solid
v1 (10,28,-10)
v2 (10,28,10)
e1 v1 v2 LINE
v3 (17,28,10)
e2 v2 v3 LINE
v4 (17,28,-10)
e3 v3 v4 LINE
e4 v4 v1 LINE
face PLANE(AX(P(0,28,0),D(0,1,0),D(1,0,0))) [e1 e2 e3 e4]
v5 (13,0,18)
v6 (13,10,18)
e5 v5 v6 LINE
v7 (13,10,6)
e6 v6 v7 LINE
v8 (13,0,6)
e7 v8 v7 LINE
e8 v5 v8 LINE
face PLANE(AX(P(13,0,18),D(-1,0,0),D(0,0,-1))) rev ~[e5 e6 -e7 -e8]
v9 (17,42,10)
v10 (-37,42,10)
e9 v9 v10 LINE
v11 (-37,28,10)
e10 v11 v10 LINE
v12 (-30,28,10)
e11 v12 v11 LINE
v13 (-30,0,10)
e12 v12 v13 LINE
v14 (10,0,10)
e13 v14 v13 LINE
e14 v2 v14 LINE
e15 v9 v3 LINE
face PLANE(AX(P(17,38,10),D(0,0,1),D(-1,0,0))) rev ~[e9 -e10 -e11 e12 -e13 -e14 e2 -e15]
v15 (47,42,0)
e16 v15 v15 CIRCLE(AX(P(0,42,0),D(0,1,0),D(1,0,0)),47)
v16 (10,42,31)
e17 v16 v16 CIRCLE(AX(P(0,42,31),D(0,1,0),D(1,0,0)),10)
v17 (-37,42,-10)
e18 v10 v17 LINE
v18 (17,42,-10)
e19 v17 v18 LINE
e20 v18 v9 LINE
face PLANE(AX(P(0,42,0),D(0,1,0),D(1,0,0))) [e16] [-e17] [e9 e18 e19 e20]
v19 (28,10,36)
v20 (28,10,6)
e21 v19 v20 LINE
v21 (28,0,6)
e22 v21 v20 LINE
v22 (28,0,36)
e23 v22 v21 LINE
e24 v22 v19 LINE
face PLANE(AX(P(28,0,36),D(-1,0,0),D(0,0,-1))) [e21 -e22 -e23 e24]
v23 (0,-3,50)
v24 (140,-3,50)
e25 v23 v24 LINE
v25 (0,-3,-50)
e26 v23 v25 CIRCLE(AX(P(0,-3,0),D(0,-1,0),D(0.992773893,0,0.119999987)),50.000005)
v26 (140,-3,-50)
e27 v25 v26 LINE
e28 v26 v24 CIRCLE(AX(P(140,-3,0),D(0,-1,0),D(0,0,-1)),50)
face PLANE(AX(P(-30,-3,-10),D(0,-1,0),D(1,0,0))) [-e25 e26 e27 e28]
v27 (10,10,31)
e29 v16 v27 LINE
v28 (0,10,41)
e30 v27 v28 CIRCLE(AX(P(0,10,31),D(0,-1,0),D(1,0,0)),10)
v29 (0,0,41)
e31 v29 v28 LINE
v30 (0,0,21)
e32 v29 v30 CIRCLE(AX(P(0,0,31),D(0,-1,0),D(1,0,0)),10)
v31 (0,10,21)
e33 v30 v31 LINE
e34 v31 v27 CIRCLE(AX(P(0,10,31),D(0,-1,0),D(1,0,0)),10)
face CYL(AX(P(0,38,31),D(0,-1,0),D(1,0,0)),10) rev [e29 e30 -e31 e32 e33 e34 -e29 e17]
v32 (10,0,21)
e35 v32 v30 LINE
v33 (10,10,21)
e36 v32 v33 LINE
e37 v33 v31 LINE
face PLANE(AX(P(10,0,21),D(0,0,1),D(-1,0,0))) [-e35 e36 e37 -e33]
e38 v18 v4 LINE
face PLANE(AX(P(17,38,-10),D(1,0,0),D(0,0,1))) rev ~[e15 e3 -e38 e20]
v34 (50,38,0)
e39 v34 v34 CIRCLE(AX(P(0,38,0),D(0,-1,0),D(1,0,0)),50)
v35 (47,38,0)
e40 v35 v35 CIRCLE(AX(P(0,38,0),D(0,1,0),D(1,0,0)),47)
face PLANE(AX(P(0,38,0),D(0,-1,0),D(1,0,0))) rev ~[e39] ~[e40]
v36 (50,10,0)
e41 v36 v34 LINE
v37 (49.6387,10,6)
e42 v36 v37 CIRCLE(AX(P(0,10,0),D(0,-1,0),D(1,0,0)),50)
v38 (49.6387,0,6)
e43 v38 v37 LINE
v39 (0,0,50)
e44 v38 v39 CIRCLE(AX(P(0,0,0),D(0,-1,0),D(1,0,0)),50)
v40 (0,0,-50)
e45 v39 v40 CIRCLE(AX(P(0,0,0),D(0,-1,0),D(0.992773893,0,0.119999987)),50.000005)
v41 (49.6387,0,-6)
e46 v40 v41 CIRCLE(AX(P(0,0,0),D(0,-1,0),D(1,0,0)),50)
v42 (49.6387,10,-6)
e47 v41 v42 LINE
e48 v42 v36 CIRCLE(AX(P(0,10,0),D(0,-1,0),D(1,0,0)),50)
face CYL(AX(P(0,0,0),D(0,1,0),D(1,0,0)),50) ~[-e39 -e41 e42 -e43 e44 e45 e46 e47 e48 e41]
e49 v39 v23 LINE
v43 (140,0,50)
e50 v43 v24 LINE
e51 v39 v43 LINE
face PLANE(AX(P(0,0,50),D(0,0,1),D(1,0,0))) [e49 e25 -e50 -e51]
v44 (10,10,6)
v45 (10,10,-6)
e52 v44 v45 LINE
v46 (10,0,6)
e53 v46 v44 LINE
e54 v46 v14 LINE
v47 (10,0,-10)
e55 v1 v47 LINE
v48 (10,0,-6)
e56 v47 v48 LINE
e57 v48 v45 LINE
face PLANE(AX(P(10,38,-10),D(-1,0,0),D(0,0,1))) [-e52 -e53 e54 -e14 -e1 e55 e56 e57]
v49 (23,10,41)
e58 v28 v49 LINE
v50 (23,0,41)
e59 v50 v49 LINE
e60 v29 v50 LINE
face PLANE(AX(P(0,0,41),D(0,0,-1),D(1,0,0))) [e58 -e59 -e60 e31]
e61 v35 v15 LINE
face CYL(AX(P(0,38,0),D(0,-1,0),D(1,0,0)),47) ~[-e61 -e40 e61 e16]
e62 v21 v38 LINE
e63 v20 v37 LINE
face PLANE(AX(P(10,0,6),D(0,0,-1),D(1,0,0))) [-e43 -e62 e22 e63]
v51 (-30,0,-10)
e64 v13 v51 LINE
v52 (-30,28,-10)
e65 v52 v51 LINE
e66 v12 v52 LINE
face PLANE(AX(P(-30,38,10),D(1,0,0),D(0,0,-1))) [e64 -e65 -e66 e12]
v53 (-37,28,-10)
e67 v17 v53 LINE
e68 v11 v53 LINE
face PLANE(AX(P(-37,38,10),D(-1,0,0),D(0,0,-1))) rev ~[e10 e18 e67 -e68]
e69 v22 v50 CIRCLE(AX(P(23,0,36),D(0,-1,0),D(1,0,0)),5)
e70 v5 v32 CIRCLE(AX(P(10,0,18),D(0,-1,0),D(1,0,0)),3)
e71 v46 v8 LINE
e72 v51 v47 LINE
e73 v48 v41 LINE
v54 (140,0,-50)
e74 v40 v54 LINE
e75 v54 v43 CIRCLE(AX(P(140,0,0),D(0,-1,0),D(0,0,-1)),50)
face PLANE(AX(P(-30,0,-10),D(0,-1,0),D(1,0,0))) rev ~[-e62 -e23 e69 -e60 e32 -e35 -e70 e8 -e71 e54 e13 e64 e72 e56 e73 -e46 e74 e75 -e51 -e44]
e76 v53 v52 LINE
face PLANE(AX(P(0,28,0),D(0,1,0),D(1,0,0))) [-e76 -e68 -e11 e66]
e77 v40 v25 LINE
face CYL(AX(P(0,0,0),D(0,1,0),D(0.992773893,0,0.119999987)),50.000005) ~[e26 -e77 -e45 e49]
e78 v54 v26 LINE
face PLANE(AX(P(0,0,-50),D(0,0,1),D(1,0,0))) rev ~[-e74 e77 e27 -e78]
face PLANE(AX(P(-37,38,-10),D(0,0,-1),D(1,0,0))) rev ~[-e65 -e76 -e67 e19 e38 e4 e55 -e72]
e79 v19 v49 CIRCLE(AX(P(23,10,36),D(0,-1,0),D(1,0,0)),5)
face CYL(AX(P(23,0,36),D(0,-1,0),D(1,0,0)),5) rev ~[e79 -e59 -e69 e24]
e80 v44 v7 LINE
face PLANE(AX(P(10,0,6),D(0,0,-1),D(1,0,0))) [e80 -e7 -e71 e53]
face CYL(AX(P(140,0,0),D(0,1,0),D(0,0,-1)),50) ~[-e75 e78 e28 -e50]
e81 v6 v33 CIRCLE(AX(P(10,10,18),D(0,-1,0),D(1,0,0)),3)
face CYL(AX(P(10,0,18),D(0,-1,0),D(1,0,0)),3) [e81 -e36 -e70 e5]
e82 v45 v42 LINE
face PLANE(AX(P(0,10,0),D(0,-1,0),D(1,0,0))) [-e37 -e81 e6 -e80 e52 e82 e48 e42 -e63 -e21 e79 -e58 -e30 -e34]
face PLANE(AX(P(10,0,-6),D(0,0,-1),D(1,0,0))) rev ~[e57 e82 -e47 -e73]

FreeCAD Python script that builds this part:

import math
import FreeCAD as App
import Part
import Sketcher
Q = App.Units.Quantity


def add_polygon(sketch, points):
    """Adds a closed chain of lines whose ends are joined by coincident constraints."""
    first, n = sketch.GeometryCount, len(points)
    for a, b in zip(points, points[1:] + points[:1]):
        sketch.addGeometry(Part.LineSegment(App.Vector(*a, 0), App.Vector(*b, 0)), False)
    for i in range(n):
        sketch.addConstraint(Sketcher.Constraint("Coincident", first + i, 2, first + (i + 1) % n, 1))

doc = App.newDocument("Part")
body = doc.addObject("PartDesign::Body", "Body")

sketch1 = body.newObject("Sketcher::SketchObject", "Sketch")
sketch1.AttachmentSupport = (doc.getObject("XY_Plane"), [""])
sketch1.MapMode = "FlatFace"
add_polygon(sketch1, [(0, 38), (0, 0), (50, 0), (50, 38)])
sketch1.addConstraint([
    Sketcher.Constraint("Vertical", 0),
    Sketcher.Constraint("Horizontal", 1),
    Sketcher.Constraint("Vertical", 2),
    Sketcher.Constraint("Horizontal", 3),
    Sketcher.Constraint("Coincident", 0, 2, -1, 1),
    Sketcher.Constraint("DistanceY", 0, 2, 0, 1, Q("38 mm")),
    Sketcher.Constraint("DistanceX", 1, 1, 1, 2, Q("50 mm")),
])
revolution = body.newObject("PartDesign::Revolution", "Revolution")
revolution.Profile = sketch1
revolution.ReferenceAxis = (sketch1, ["V_Axis"])
revolution.Angle = 360

sketch2 = body.newObject("Sketcher::SketchObject", "Sketch001")
sketch2.AttachmentSupport = (doc.getObject("XZ_Plane"), [""])
sketch2.MapMode = "FlatFace"
sketch2.AttachmentOffset = App.Placement(App.Vector(0, 0, -38), App.Rotation())
add_polygon(sketch2, [(10, -10), (-30, -10), (-30, 10), (10, 10)])
sketch2.addConstraint([
    Sketcher.Constraint("Horizontal", 0),
    Sketcher.Constraint("Vertical", 1),
    Sketcher.Constraint("Horizontal", 2),
    Sketcher.Constraint("Vertical", 3),
    Sketcher.Constraint("DistanceX", 0, 2, 0, 1, Q("40 mm")),
    Sketcher.Constraint("DistanceY", 1, 1, 1, 2, Q("20 mm")),
    Sketcher.Constraint("DistanceY", 0, 2, -1, 1, Q("10 mm")),
    Sketcher.Constraint("DistanceX", -1, 1, 2, 2, Q("10 mm")),
])
pocket1 = body.newObject("PartDesign::Pocket", "Pocket")
pocket1.Profile = sketch2
pocket1.Length = 38
pocket1.Reversed = True

sketch3 = body.newObject("Sketcher::SketchObject", "Sketch002")
sketch3.AttachmentSupport = (doc.getObject("XZ_Plane"), [""])
sketch3.MapMode = "FlatFace"
sketch3.AttachmentOffset = App.Placement(App.Vector(0, 0, -38), App.Rotation())
add_polygon(sketch3, [(-30, 10), (-30, -10), (-37, -10), (-37, 10)])
add_polygon(sketch3, [(17, -10), (10, -10), (10, 10), (17, 10)])
sketch3.addConstraint([
    Sketcher.Constraint("Vertical", 0),
    Sketcher.Constraint("Horizontal", 1),
    Sketcher.Constraint("Vertical", 2),
    Sketcher.Constraint("Horizontal", 3),
    Sketcher.Constraint("Horizontal", 4),
    Sketcher.Constraint("Vertical", 5),
    Sketcher.Constraint("Horizontal", 6),
    Sketcher.Constraint("Vertical", 7),
    Sketcher.Constraint("Horizontal", 1, 2, 4, 2),
    Sketcher.Constraint("Horizontal", 3, 2, 5, 2),
    Sketcher.Constraint("Equal", 3, 4),
    Sketcher.Constraint("DistanceX", 1, 2, 1, 1, Q("7 mm")),
    Sketcher.Constraint("DistanceY", 0, 2, 0, 1, Q("20 mm")),
    Sketcher.Constraint("DistanceY", 0, 2, -1, 1, Q("10 mm")),
    Sketcher.Constraint("DistanceX", -1, 1, 4, 2, Q("10 mm")),
    Sketcher.Constraint("DistanceX", 0, 2, 4, 2, Q("40 mm")),
])
pocket2 = body.newObject("PartDesign::Pocket", "Pocket001")
pocket2.Profile = sketch3
pocket2.Length = 10
pocket2.Reversed = True

sketch4 = body.newObject("Sketcher::SketchObject", "Sketch003")
sketch4.AttachmentSupport = (doc.getObject("XZ_Plane"), [""])
sketch4.MapMode = "FlatFace"
sketch4.addGeometry([
    Part.LineSegment(App.Vector(49.6387, 6, 0), App.Vector(10, 6, 0)),
    Part.LineSegment(App.Vector(10, 6, 0), App.Vector(10, -6, 0)),
    Part.LineSegment(App.Vector(10, -6, 0), App.Vector(49.6387, -6, 0)),
    Part.ArcOfCircle(Part.Circle(App.Vector(0, 0, 0), App.Vector(0, 0, 1), 50), math.radians(-6.892102), math.radians(6.892102)),
], False)
sketch4.addConstraint([
    Sketcher.Constraint("Coincident", 0, 2, 1, 1),
    Sketcher.Constraint("Coincident", 1, 2, 2, 1),
    Sketcher.Constraint("Coincident", 2, 2, 3, 1),
    Sketcher.Constraint("Coincident", 3, 2, 0, 1),
    Sketcher.Constraint("Horizontal", 0),
    Sketcher.Constraint("Vertical", 1),
    Sketcher.Constraint("Horizontal", 2),
    Sketcher.Constraint("Coincident", 3, 3, -1, 1),
    Sketcher.Constraint("Vertical", 2, 2, 3, 2),
    Sketcher.Constraint("DistanceY", 1, 2, 1, 1, Q("12 mm")),
    Sketcher.Constraint("Radius", 3, Q("50 mm")),
    Sketcher.Constraint("DistanceX", -1, 1, 0, 2, Q("10 mm")),
])
pocket3 = body.newObject("PartDesign::Pocket", "Pocket002")
pocket3.Profile = sketch4
pocket3.Length = 10

sketch5 = body.newObject("Sketcher::SketchObject", "Sketch004")
sketch5.AttachmentSupport = (doc.getObject("XZ_Plane"), [""])
sketch5.MapMode = "FlatFace"
sketch5.addGeometry([
    Part.LineSegment(App.Vector(13, 6, 0), App.Vector(28, 6, 0)),
    Part.LineSegment(App.Vector(28, 6, 0), App.Vector(28, 36, 0)),
    Part.ArcOfCircle(Part.Circle(App.Vector(23, 36, 0), App.Vector(0, 0, 1), 5), math.radians(0), math.radians(90)),
    Part.LineSegment(App.Vector(23, 41, 0), App.Vector(0, 41, 0)),
    Part.ArcOfCircle(Part.Circle(App.Vector(0, 31, 0), App.Vector(0, 0, 1), 10), math.radians(90), math.radians(270)),
    Part.LineSegment(App.Vector(0, 21, 0), App.Vector(10, 21, 0)),
    Part.ArcOfCircle(Part.Circle(App.Vector(10, 18, 0), App.Vector(0, 0, 1), 3), math.radians(0), math.radians(90)),
    Part.LineSegment(App.Vector(13, 18, 0), App.Vector(13, 6, 0)),
], False)
sketch5.addConstraint([
    Sketcher.Constraint("Coincident", 0, 2, 1, 1),
    Sketcher.Constraint("Tangent", 1, 2, 2, 1),
    Sketcher.Constraint("Tangent", 2, 2, 3, 1),
    Sketcher.Constraint("Tangent", 3, 2, 4, 1),
    Sketcher.Constraint("Tangent", 4, 2, 5, 1),
    Sketcher.Constraint("Tangent", 5, 2, 6, 2),
    Sketcher.Constraint("Tangent", 6, 1, 7, 1),
    Sketcher.Constraint("Coincident", 7, 2, 0, 1),
    Sketcher.Constraint("Horizontal", 0),
    Sketcher.Constraint("Vertical", 1),
    Sketcher.Constraint("Horizontal", 3),
    Sketcher.Constraint("Horizontal", 5),
    Sketcher.Constraint("Vertical", 7),
    Sketcher.Constraint("PointOnObject", 4, 3, -2),
    Sketcher.Constraint("Radius", 2, Q("5 mm")),
    Sketcher.Constraint("Radius", 4, Q("10 mm")),
    Sketcher.Constraint("Radius", 6, Q("3 mm")),
    Sketcher.Constraint("DistanceX", 0, 1, 0, 2, Q("15 mm")),
    Sketcher.Constraint("DistanceX", -1, 1, 0, 2, Q("28 mm")),
    Sketcher.Constraint("DistanceY", 0, 2, 4, 3, Q("25 mm")),
    Sketcher.Constraint("DistanceY", -1, 1, 2, 3, Q("36 mm")),
])
pocket4 = body.newObject("PartDesign::Pocket", "Pocket003")
pocket4.Profile = sketch5
pocket4.Length = 10

sketch6 = body.newObject("Sketcher::SketchObject", "Sketch005")
sketch6.AttachmentSupport = (doc.getObject("XZ_Plane"), [""])
sketch6.MapMode = "FlatFace"
sketch6.AttachmentOffset = App.Placement(App.Vector(0, 0, -10), App.Rotation())
sketch6.addGeometry(Part.Circle(App.Vector(0, 31, 0), App.Vector(0, 0, 1), 10), False)
sketch6.addConstraint([
    Sketcher.Constraint("PointOnObject", 0, 3, -2),
    Sketcher.Constraint("Diameter", 0, Q("20 mm")),
    Sketcher.Constraint("DistanceY", -1, 1, 0, 3, Q("31 mm")),
])
pocket5 = body.newObject("PartDesign::Pocket", "Pocket004")
pocket5.Profile = sketch6
pocket5.Type = "ThroughAll"

sketch7 = body.newObject("Sketcher::SketchObject", "Sketch006")
sketch7.AttachmentSupport = (doc.getObject("XZ_Plane"), [""])
sketch7.MapMode = "FlatFace"
sketch7.addGeometry([
    Part.LineSegment(App.Vector(140, 50, 0), App.Vector(0, 50, 0)),
    Part.ArcOfCircle(Part.Circle(App.Vector(0, 0, 0), App.Vector(0, 0, 1), 50.000005), math.radians(90), math.radians(270)),
    Part.LineSegment(App.Vector(0, -50, 0), App.Vector(140, -50, 0)),
    Part.ArcOfCircle(Part.Circle(App.Vector(140, 0, 0), App.Vector(0, 0, 1), 50), math.radians(-90), math.radians(90)),
], False)
sketch7.addConstraint([
    Sketcher.Constraint("Tangent", 0, 2, 1, 1),
    Sketcher.Constraint("Tangent", 1, 2, 2, 1),
    Sketcher.Constraint("Tangent", 2, 2, 3, 1),
    Sketcher.Constraint("Tangent", 3, 2, 0, 1),
    Sketcher.Constraint("Horizontal", 0),
    Sketcher.Constraint("Horizontal", 2),
    Sketcher.Constraint("Coincident", 1, 3, -1, 1),
    Sketcher.Constraint("Radius", 1, Q("50 mm")),
    Sketcher.Constraint("DistanceX", 0, 2, 0, 1, Q("140 mm")),
])
pad1 = body.newObject("PartDesign::Pad", "Pad")
pad1.Profile = sketch7
pad1.Length = 3

sketch8 = body.newObject("Sketcher::SketchObject", "Sketch007")
sketch8.AttachmentSupport = (doc.getObject("XZ_Plane"), [""])
sketch8.MapMode = "FlatFace"
sketch8.AttachmentOffset = App.Placement(App.Vector(0, 0, -38), App.Rotation())
sketch8.addGeometry(Part.Circle(App.Vector(0, 0, 0), App.Vector(0, 0, 1), 47), False)
sketch8.addGeometry(Part.Circle(App.Vector(0, 31, 0), App.Vector(0, 0, 1), 10), False)
add_polygon(sketch8, [(17, 10), (-37, 10), (-37, -10), (17, -10)])
sketch8.addConstraint([
    Sketcher.Constraint("Horizontal", 2),
    Sketcher.Constraint("Vertical", 3),
    Sketcher.Constraint("Horizontal", 4),
    Sketcher.Constraint("Vertical", 5),
    Sketcher.Constraint("Coincident", 0, 3, -1, 1),
    Sketcher.Constraint("PointOnObject", 1, 3, -2),
    Sketcher.Constraint("Diameter", 0, Q("94 mm")),
    Sketcher.Constraint("Diameter", 1, Q("20 mm")),
    Sketcher.Constraint("DistanceX", 2, 2, 2, 1, Q("54 mm")),
    Sketcher.Constraint("DistanceY", 3, 2, 3, 1, Q("20 mm")),
    Sketcher.Constraint("DistanceY", -1, 1, 1, 3, Q("31 mm")),
    Sketcher.Constraint("DistanceX", 2, 2, -1, 1, Q("37 mm")),
    Sketcher.Constraint("DistanceY", -1, 1, 2, 2, Q("10 mm")),
])
pad2 = body.newObject("PartDesign::Pad", "Pad001")
pad2.Profile = sketch8
pad2.Length = 4
pad2.Reversed = True

doc.recompute()
